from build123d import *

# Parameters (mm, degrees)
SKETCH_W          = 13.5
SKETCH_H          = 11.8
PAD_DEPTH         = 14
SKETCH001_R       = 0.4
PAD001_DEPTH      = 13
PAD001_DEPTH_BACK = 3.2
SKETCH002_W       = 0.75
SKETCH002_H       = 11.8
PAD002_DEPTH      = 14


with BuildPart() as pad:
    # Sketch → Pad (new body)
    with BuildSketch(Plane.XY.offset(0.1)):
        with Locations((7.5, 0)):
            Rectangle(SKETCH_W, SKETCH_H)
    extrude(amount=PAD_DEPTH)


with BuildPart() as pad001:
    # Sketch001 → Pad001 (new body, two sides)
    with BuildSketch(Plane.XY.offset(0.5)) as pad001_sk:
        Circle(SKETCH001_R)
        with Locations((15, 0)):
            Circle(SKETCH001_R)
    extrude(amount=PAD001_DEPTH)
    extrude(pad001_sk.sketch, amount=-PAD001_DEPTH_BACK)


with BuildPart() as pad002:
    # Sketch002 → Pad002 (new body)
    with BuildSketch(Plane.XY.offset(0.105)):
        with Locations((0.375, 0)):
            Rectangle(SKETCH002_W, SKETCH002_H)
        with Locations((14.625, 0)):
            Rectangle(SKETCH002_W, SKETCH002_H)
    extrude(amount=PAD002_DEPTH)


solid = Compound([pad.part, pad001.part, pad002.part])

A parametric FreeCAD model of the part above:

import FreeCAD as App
import Part
import Sketcher
from FreeCAD import Vector

doc = App.newDocument("Part")
body = doc.addObject("PartDesign::Body", "Body")

# Sketch on XY plane
sketch1 = body.newObject("Sketcher::SketchObject", "Sketch")
sketch1.AttachmentSupport = (doc.getObject("XY_Plane"), [""])
sketch1.MapMode = "FlatFace"
sketch1.AttachmentOffset = App.Placement(Vector(0, 0, 0.1), App.Rotation())
sketch1.addGeometry([
    Part.LineSegment(Vector(1, 6, 0), Vector(1, -6, 0)),
    Part.LineSegment(Vector(1, -6, 0), Vector(14, -6, 0)),
    Part.LineSegment(Vector(14, -6, 0), Vector(14, 6, 0)),
    Part.LineSegment(Vector(14, 6, 0), Vector(1, 6, 0)),
], False)
sketch1.addConstraint([
    Sketcher.Constraint("Coincident", 0, 2, 1, 1),
    Sketcher.Constraint("Coincident", 1, 2, 2, 1),
    Sketcher.Constraint("Coincident", 2, 2, 3, 1),
    Sketcher.Constraint("Coincident", 3, 2, 0, 1),
    Sketcher.Constraint("Vertical", 0),
    Sketcher.Constraint("Horizontal", 1),
    Sketcher.Constraint("Vertical", 2),
    Sketcher.Constraint("Horizontal", 3),
    Sketcher.Constraint("DistanceX", 1, 1, 1, 2, 13.5),
    Sketcher.Constraint("DistanceY", 0, 2, 0, 1, 11.8),
    Sketcher.Constraint("DistanceY", 0, 2, -1, 1, 5.9),
    Sketcher.Constraint("DistanceX", -1, 1, 0, 2, 0.75),
])
pad1 = body.newObject("PartDesign::Pad", "Pad")
pad1.Profile = sketch1
pad1.Length = 14
body2 = doc.addObject("PartDesign::Body", "Body001")
body2.AllowCompound = True

# Sketch on XY plane
sketch2 = body2.newObject("Sketcher::SketchObject", "Sketch001")
sketch2.AttachmentSupport = (doc.getObject("XY_Plane001"), [""])
sketch2.MapMode = "FlatFace"
sketch2.AttachmentOffset = App.Placement(Vector(0, 0, 0.5), App.Rotation())
sketch2.addGeometry([
    Part.Circle(Vector(0, 0, 0), Vector(0, 0, 1), 0.4),
    Part.Circle(Vector(15, 0, 0), Vector(0, 0, 1), 0.4),
], False)
sketch2.addConstraint([
    Sketcher.Constraint("Coincident", 0, 3, -1, 1),
    Sketcher.Constraint("Equal", 0, 1),
    Sketcher.Constraint("PointOnObject", 1, 3, -1),
    Sketcher.Constraint("Diameter", 0, 0.8),
    Sketcher.Constraint("DistanceX", -1, 1, 1, 3, 15.0),
])
pad2 = body2.newObject("PartDesign::Pad", "Pad001")
pad2.Profile = sketch2
pad2.Type = "TwoLengths"
pad2.Length = 13
pad2.Length2 = 3.2
body3 = doc.addObject("PartDesign::Body", "Body002")
body3.AllowCompound = True

# Sketch on XY plane
sketch3 = body3.newObject("Sketcher::SketchObject", "Sketch002")
sketch3.AttachmentSupport = (doc.getObject("XY_Plane002"), [""])
sketch3.MapMode = "FlatFace"
sketch3.AttachmentOffset = App.Placement(Vector(0, 0, 0.105), App.Rotation())
sketch3.addGeometry([
    Part.LineSegment(Vector(0, 5.9, 0), Vector(0, -5.9, 0)),  # 0
    Part.LineSegment(Vector(0, -5.9, 0), Vector(0.8, -5.9, 0)),  # 1
    Part.LineSegment(Vector(0.8, -5.9, 0), Vector(0.8, 5.9, 0)),  # 2
    Part.LineSegment(Vector(0.8, 5.9, 0), Vector(0, 5.9, 0)),  # 3
    Part.LineSegment(Vector(14.2, 5.9, 0), Vector(14.2, -5.9, 0)),  # 4
    Part.LineSegment(Vector(14.2, -5.9, 0), Vector(15, -5.9, 0)),  # 5
    Part.LineSegment(Vector(15, -5.9, 0), Vector(15, 5.9, 0)),  # 6
    Part.LineSegment(Vector(15, 5.9, 0), Vector(14.2, 5.9, 0)),  # 7
], False)
sketch3.addConstraint([
    Sketcher.Constraint("Coincident", 0, 2, 1, 1),
    Sketcher.Constraint("Coincident", 1, 2, 2, 1),
    Sketcher.Constraint("Coincident", 2, 2, 3, 1),
    Sketcher.Constraint("Coincident", 3, 2, 0, 1),
    Sketcher.Constraint("Coincident", 4, 2, 5, 1),
    Sketcher.Constraint("Coincident", 5, 2, 6, 1),
    Sketcher.Constraint("Coincident", 6, 2, 7, 1),
    Sketcher.Constraint("Coincident", 7, 2, 4, 1),
    Sketcher.Constraint("Vertical", 0),
    Sketcher.Constraint("Horizontal", 1),
    Sketcher.Constraint("Vertical", 2),
    Sketcher.Constraint("Horizontal", 3),
    Sketcher.Constraint("Vertical", 4),
    Sketcher.Constraint("Horizontal", 5),
    Sketcher.Constraint("Vertical", 6),
    Sketcher.Constraint("Horizontal", 7),
    Sketcher.Constraint("Symmetric", 0, 2, 3, 2, -1, 1),
    Sketcher.Constraint("Horizontal", 1, 2, 4, 2),
    Sketcher.Constraint("Horizontal", 3, 2, 6, 2),
    Sketcher.Constraint("Equal", 3, 5),
    Sketcher.Constraint("DistanceY", 0, 2, 0, 1, 11.8),
    Sketcher.Constraint("DistanceX", -1, 1, 5, 2, 15.0),
    Sketcher.Constraint("DistanceX", 1, 1, 1, 2, 0.75),
])
pad3 = body3.newObject("PartDesign::Pad", "Pad002")
pad3.Profile = sketch3
pad3.Length = 14

doc.recompute()
